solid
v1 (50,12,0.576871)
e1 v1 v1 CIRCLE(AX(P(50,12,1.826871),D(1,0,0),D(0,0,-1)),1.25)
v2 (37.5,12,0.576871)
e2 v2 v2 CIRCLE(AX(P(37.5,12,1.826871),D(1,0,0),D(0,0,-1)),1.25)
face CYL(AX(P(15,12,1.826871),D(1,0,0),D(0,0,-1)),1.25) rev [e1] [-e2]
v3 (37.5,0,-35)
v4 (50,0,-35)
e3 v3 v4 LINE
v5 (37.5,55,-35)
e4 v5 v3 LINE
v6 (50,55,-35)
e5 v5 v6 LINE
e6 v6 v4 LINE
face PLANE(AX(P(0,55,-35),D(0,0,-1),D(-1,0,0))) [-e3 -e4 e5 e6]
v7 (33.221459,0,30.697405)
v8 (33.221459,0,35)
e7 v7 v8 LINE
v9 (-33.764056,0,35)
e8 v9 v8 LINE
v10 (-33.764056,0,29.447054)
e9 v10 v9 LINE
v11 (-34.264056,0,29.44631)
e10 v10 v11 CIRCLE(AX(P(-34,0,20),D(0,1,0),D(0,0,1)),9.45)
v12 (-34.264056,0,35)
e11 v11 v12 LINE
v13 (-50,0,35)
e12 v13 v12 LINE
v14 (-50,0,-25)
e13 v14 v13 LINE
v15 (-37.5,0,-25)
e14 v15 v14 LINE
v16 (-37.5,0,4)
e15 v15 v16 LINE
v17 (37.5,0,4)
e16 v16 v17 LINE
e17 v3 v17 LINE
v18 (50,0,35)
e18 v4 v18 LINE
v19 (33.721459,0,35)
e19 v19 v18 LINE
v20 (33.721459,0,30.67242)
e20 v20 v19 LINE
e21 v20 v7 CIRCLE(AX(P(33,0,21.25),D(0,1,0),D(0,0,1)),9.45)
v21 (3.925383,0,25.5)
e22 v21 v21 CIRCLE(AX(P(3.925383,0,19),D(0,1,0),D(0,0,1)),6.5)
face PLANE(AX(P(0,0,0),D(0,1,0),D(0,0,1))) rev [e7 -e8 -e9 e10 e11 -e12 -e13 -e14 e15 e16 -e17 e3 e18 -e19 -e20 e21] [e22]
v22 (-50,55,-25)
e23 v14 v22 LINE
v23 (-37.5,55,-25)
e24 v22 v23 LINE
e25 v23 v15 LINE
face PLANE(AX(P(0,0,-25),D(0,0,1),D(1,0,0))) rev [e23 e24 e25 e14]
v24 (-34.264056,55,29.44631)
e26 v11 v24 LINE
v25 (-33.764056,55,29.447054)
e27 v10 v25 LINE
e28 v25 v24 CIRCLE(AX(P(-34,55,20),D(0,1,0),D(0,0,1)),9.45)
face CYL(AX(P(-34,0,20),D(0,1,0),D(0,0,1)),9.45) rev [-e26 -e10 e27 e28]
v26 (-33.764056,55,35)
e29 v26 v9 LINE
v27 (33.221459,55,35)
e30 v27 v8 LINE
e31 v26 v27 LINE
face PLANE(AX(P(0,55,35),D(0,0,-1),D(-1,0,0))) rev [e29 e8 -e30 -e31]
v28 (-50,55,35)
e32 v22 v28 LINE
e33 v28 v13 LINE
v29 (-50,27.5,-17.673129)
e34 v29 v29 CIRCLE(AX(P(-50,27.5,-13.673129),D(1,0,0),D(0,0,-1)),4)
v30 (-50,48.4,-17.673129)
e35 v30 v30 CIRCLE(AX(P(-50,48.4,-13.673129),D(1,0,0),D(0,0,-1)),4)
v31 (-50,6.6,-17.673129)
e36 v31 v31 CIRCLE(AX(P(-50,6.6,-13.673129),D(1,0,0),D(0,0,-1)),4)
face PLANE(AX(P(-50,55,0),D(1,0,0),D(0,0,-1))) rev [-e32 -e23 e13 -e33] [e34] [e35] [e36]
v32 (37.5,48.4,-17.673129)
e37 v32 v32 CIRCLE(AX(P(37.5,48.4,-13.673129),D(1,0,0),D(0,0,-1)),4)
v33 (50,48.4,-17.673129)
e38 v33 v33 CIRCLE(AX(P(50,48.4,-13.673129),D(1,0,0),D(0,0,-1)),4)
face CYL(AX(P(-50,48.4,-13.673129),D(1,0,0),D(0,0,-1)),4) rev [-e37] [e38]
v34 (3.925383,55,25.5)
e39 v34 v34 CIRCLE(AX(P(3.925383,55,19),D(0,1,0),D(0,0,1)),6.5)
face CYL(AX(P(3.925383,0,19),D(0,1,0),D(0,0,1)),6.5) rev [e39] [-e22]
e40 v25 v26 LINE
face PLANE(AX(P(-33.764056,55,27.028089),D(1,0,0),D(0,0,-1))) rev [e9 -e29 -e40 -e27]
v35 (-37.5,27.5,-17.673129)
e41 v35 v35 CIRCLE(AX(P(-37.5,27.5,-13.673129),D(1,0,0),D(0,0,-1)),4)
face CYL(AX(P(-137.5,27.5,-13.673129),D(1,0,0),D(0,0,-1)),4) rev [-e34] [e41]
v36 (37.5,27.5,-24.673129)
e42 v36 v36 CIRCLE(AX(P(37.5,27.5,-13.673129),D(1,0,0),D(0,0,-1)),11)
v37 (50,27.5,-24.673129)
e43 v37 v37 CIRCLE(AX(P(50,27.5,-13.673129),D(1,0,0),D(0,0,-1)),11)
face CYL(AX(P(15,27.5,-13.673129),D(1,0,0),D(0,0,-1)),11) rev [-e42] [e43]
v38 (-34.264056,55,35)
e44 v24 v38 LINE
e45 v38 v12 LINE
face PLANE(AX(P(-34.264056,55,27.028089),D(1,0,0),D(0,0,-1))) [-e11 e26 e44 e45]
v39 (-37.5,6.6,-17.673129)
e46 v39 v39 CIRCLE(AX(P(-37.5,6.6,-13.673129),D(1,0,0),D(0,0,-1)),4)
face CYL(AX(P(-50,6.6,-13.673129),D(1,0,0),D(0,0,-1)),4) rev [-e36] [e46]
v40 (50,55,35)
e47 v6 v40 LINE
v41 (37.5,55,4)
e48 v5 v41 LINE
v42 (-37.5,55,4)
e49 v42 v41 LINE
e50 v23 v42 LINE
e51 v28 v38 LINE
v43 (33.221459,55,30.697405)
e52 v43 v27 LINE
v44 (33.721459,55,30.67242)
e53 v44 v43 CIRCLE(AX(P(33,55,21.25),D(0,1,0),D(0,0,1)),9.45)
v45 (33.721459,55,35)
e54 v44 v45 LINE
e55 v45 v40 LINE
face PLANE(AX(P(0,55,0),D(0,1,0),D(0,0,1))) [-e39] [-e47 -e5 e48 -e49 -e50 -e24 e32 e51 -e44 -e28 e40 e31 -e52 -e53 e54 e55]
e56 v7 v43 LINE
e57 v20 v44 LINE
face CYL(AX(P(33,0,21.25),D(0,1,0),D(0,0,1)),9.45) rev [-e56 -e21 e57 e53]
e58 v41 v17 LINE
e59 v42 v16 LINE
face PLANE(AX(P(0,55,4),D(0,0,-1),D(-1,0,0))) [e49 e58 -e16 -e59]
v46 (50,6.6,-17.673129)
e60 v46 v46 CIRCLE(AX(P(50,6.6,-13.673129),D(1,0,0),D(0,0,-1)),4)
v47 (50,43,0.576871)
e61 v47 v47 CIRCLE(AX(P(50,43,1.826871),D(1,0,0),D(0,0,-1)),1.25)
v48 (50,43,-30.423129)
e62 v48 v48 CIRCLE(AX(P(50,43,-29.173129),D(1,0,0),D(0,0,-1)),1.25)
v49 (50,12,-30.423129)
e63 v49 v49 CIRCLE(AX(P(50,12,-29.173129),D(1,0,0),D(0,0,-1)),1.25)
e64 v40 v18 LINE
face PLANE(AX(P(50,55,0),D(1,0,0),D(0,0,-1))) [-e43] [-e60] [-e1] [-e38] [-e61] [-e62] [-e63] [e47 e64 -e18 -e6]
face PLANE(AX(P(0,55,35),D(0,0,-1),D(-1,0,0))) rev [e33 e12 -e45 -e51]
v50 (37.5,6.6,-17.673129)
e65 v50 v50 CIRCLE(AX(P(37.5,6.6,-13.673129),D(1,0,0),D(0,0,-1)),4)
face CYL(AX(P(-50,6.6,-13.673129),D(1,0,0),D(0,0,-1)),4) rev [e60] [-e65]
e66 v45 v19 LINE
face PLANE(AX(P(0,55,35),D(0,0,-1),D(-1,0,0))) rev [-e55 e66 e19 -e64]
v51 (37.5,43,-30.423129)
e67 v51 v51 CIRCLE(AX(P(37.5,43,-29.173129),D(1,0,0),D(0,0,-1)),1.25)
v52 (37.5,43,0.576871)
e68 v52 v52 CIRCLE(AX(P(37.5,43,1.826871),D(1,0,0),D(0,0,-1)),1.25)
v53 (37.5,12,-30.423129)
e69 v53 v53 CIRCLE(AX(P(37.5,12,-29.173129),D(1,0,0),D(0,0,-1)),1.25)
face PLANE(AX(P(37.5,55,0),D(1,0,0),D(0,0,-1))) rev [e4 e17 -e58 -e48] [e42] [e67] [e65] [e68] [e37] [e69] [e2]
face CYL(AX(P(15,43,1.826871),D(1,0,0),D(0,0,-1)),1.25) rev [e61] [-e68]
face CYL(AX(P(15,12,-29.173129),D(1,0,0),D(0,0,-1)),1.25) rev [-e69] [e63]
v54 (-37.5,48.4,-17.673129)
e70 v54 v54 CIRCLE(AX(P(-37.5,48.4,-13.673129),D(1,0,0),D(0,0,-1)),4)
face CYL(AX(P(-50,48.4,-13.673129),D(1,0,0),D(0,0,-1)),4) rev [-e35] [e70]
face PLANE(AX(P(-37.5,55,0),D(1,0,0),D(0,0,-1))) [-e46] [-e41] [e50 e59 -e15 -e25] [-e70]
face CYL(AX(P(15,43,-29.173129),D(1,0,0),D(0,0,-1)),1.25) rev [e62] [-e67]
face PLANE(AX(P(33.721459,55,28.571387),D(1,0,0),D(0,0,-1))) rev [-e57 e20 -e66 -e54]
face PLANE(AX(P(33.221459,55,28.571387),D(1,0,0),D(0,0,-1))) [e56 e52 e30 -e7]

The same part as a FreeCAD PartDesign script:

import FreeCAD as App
import Part
import Sketcher
Q = App.Units.Quantity


def add_polygon(sketch, points):
    """Adds a closed chain of lines whose ends are joined by coincident constraints."""
    first, n = sketch.GeometryCount, len(points)
    for a, b in zip(points, points[1:] + points[:1]):
        sketch.addGeometry(Part.LineSegment(App.Vector(*a, 0), App.Vector(*b, 0)), False)
    for i in range(n):
        sketch.addConstraint(Sketcher.Constraint("Coincident", first + i, 2, first + (i + 1) % n, 1))

doc = App.newDocument("Part")
body = doc.addObject("PartDesign::Body", "Body")

# Sketch on XZ plane
sketch1 = body.newObject("Sketcher::SketchObject", "Sketch")
sketch1.AttachmentSupport = (doc.getObject("XZ_Plane"), [""])
sketch1.MapMode = "FlatFace"
add_polygon(sketch1, [(-38, -35), (-50, -35), (-50, 35), (50, 35), (50, -35), (38, -35), (38, 4), (-38, 4)])  # lines 0-7
sketch1.addConstraint([
    Sketcher.Constraint("Horizontal", 0),
    Sketcher.Constraint("Vertical", 1),
    Sketcher.Constraint("Horizontal", 2),
    Sketcher.Constraint("Vertical", 3),
    Sketcher.Constraint("Horizontal", 4),
    Sketcher.Constraint("Vertical", 5),
    Sketcher.Constraint("Horizontal", 6),
    Sketcher.Constraint("Vertical", 7),
    Sketcher.Constraint("Symmetric", 0, 2, 2, 2, -1, 1),
    Sketcher.Constraint("Symmetric", 4, 2, 7, 2, -2),
    Sketcher.Constraint("DistanceX", 2, 1, 2, 2, Q("100 mm")),
    Sketcher.Constraint("DistanceX", 6, 2, 6, 1, Q("75 mm")),
    Sketcher.Constraint("DistanceY", 1, 1, 1, 2, Q("70 mm")),
    Sketcher.Constraint("DistanceY", 5, 1, 5, 2, Q("39 mm")),
])
pad1 = body.newObject("PartDesign::Pad", "Pad")
pad1.Profile = sketch1
pad1.Length = 55
pad1.Reversed = True

# Sketch on XY plane
sketch2 = body.newObject("Sketcher::SketchObject", "Sketch001")
sketch2.AttachmentSupport = (doc.getObject("XY_Plane"), [""])
sketch2.MapMode = "FlatFace"
sketch2.AttachmentOffset = App.Placement(App.Vector(0, 0, -35), App.Rotation())
add_polygon(sketch2, [(-38, 55), (-38, 0), (-50, 0), (-50, 55)])  # lines 0-3
sketch2.addConstraint([
    Sketcher.Constraint("Vertical", 0),
    Sketcher.Constraint("Horizontal", 1),
    Sketcher.Constraint("Vertical", 2),
    Sketcher.Constraint("Horizontal", 3),
    Sketcher.Constraint("PointOnObject", 0, 2, -1),
    Sketcher.Constraint("DistanceY", 0, 2, 0, 1, Q("55 mm")),
    Sketcher.Constraint("DistanceX", 1, 2, 1, 1, Q("12.5 mm")),
    Sketcher.Constraint("DistanceX", 1, 2, -1, 1, Q("50 mm")),
])
pocket1 = body.newObject("PartDesign::Pocket", "Pocket")
pocket1.Profile = sketch2
pocket1.Length = 10
pocket1.Reversed = True

# Sketch on XZ plane
sketch3 = body.newObject("Sketcher::SketchObject", "Sketch002")
sketch3.AttachmentSupport = (doc.getObject("XZ_Plane"), [""])
sketch3.MapMode = "FlatFace"
sketch3.AttachmentOffset = App.Placement(App.Vector(0, 0, -55), App.Rotation())
sketch3.addGeometry(Part.Circle(App.Vector(33, 21, 0), App.Vector(0, 0, 1), 9), False)
sketch3.addConstraint([
    Sketcher.Constraint("Diameter", 0, Q("18.9 mm")),
    Sketcher.Constraint("DistanceX", -1, 1, 0, 3, Q("33 mm")),
    Sketcher.Constraint("DistanceY", -1, 1, 0, 3, Q("21.25 mm")),
])
pocket2 = body.newObject("PartDesign::Pocket", "Pocket001")
pocket2.Profile = sketch3
pocket2.Type = "ThroughAll"
pocket2.Reversed = True

# Sketch on XZ plane
sketch4 = body.newObject("Sketcher::SketchObject", "Sketch003")
sketch4.AttachmentSupport = (doc.getObject("XZ_Plane"), [""])
sketch4.MapMode = "FlatFace"
sketch4.AttachmentOffset = App.Placement(App.Vector(0, 0, -55), App.Rotation())
sketch4.addGeometry(Part.Circle(App.Vector(-34, 20, 0), App.Vector(0, 0, 1), 9), False)
sketch4.addConstraint([
    Sketcher.Constraint("Diameter", 0, Q("18.9 mm")),
    Sketcher.Constraint("DistanceX", 0, 3, -1, 1, Q("34 mm")),
    Sketcher.Constraint("DistanceY", -1, 1, 0, 3, Q("20 mm")),
])
pocket3 = body.newObject("PartDesign::Pocket", "Pocket002")
pocket3.Profile = sketch4
pocket3.Type = "ThroughAll"
pocket3.Reversed = True

# Sketch on YZ plane
sketch5 = body.newObject("Sketcher::SketchObject", "Sketch004")
sketch5.AttachmentSupport = (doc.getObject("YZ_Plane"), [""])
sketch5.MapMode = "FlatFace"
sketch5.AttachmentOffset = App.Placement(App.Vector(0, 0, 50), App.Rotation())
sketch5.addGeometry([
    Part.Circle(App.Vector(12, -29.2, 0), App.Vector(0, 0, 1), 1.2),
    Part.Circle(App.Vector(12, 1.8, 0), App.Vector(0, 0, 1), 1.2),
    Part.Circle(App.Vector(43, 1.8, 0), App.Vector(0, 0, 1), 1.2),
    Part.Circle(App.Vector(43, -29.2, 0), App.Vector(0, 0, 1), 1.2),
], False)
sketch5.addConstraint([
    Sketcher.Constraint("Equal", 0, 1),
    Sketcher.Constraint("Equal", 1, 2),
    Sketcher.Constraint("Equal", 2, 3),
    Sketcher.Constraint("Horizontal", 1, 3, 2, 3),
    Sketcher.Constraint("Horizontal", 0, 3, 3, 3),
    Sketcher.Constraint("Vertical", 0, 3, 1, 3),
    Sketcher.Constraint("Vertical", 2, 3, 3, 3),
    Sketcher.Constraint("Diameter", 0, Q("2.5 mm")),
    Sketcher.Constraint("DistanceX", -1, 1, 0, 3, Q("12 mm")),
    Sketcher.Constraint("DistanceX", -1, 1, 2, 3, Q("43 mm")),
    Sketcher.Constraint("DistanceY", 0, 3, 1, 3, Q("31 mm")),
    Sketcher.Constraint("DistanceY", 0, 3, -1, 1, Q("29.173129 mm")),
])
pocket4 = body.newObject("PartDesign::Pocket", "Pocket003")
pocket4.Profile = sketch5
pocket4.Length = 35

# Sketch on YZ plane
sketch6 = body.newObject("Sketcher::SketchObject", "Sketch005")
sketch6.AttachmentSupport = (doc.getObject("YZ_Plane"), [""])
sketch6.MapMode = "FlatFace"
sketch6.AttachmentOffset = App.Placement(App.Vector(0, 0, 50), App.Rotation())
sketch6.addGeometry(Part.Circle(App.Vector(28, -14, 0), App.Vector(0, 0, 1), 11), False)
sketch6.addConstraint([
    Sketcher.Constraint("Diameter", 0, Q("22 mm")),
    Sketcher.Constraint("DistanceX", -1, 1, 0, 3, Q("27.5 mm")),
    Sketcher.Constraint("DistanceY", 0, 3, -1, 1, Q("13.673129 mm")),
])
pocket5 = body.newObject("PartDesign::Pocket", "Pocket004")
pocket5.Profile = sketch6
pocket5.Length = 35

# Sketch on YZ plane
sketch7 = body.newObject("Sketcher::SketchObject", "Sketch006")
sketch7.AttachmentSupport = (doc.getObject("YZ_Plane"), [""])
sketch7.MapMode = "FlatFace"
sketch7.AttachmentOffset = App.Placement(App.Vector(0, 0, 50), App.Rotation())
sketch7.addGeometry([
    Part.Circle(App.Vector(48.4, -13.7, 0), App.Vector(0, 0, 1), 4),
    Part.Circle(App.Vector(6.6, -13.7, 0), App.Vector(0, 0, 1), 4),
], False)
sketch7.addConstraint([
    Sketcher.Constraint("Equal", 0, 1),
    Sketcher.Constraint("Horizontal", 0, 3, 1, 3),
    Sketcher.Constraint("Diameter", 0, Q("8 mm")),
    Sketcher.Constraint("DistanceX", -1, 1, 0, 3, Q("48.4 mm")),
    Sketcher.Constraint("DistanceX", -1, 1, 1, 3, Q("6.6 mm")),
    Sketcher.Constraint("DistanceY", 0, 3, -1, 1, Q("13.673129 mm")),
])
pocket6 = body.newObject("PartDesign::Pocket", "Pocket005")
pocket6.Profile = sketch7
pocket6.Type = "ThroughAll"
pocket6.Midplane = True

# Sketch on YZ plane
sketch8 = body.newObject("Sketcher::SketchObject", "Sketch007")
sketch8.AttachmentSupport = (doc.getObject("YZ_Plane"), [""])
sketch8.MapMode = "FlatFace"
sketch8.AttachmentOffset = App.Placement(App.Vector(0, 0, -37.5), App.Rotation())
sketch8.addGeometry(Part.Circle(App.Vector(27.5, -13.7, 0), App.Vector(0, 0, 1), 4), False)
sketch8.addConstraint([
    Sketcher.Constraint("Diameter", 0, Q("8 mm")),
    Sketcher.Constraint("DistanceX", -1, 1, 0, 3, Q("27.5 mm")),
    Sketcher.Constraint("DistanceY", 0, 3, -1, 1, Q("13.673129 mm")),
])
pocket7 = body.newObject("PartDesign::Pocket", "Pocket006")
pocket7.Profile = sketch8
pocket7.Length = 100

# Sketch on XZ plane
sketch9 = body.newObject("Sketcher::SketchObject", "Sketch008")
sketch9.AttachmentSupport = (doc.getObject("XZ_Plane"), [""])
sketch9.MapMode = "FlatFace"
add_polygon(sketch9, [(33.2, 36), (33.2, 28.6), (33.7, 28.6), (33.7, 36)])  # lines 0-3
add_polygon(sketch9, [(-34.3, 36.2), (-34.3, 27), (-33.8, 27), (-33.8, 36.2)])  # lines 4-7
sketch9.addConstraint([
    Sketcher.Constraint("Vertical", 0),
    Sketcher.Constraint("Horizontal", 1),
    Sketcher.Constraint("Vertical", 2),
    Sketcher.Constraint("Horizontal", 3),
    Sketcher.Constraint("Vertical", 4),
    Sketcher.Constraint("Horizontal", 5),
    Sketcher.Constraint("Vertical", 6),
    Sketcher.Constraint("Horizontal", 7),
    Sketcher.Constraint("Equal", 3, 5),
    Sketcher.Constraint("DistanceX", 1, 1, 1, 2, Q("0.5 mm")),
    Sketcher.Constraint("DistanceY", 0, 2, 6, 2, Q("7.594699 mm")),
    Sketcher.Constraint("DistanceY", 0, 2, 0, 1, Q("7.437727 mm")),
    Sketcher.Constraint("DistanceY", 4, 2, 4, 1, Q("9.137997 mm")),
    Sketcher.Constraint("DistanceX", -1, 1, 0, 2, Q("33.221459 mm")),
    Sketcher.Constraint("DistanceY", -1, 1, 4, 2, Q("27.028089 mm")),
    Sketcher.Constraint("DistanceX", 4, 2, -1, 1, Q("34.264056 mm")),
])
pocket8 = body.newObject("PartDesign::Pocket", "Pocket007")
pocket8.Profile = sketch9
pocket8.Type = "ThroughAll"

# Sketch on XZ plane
sketch10 = body.newObject("Sketcher::SketchObject", "Sketch009")
sketch10.AttachmentSupport = (doc.getObject("XZ_Plane"), [""])
sketch10.MapMode = "FlatFace"
sketch10.AttachmentOffset = App.Placement(App.Vector(0, 0, -55), App.Rotation())
sketch10.addGeometry(Part.Circle(App.Vector(4, 19, 0), App.Vector(0, 0, 1), 6), False)
sketch10.addConstraint([
    Sketcher.Constraint("Diameter", 0, Q("13 mm")),
    Sketcher.Constraint("DistanceY", -1, 1, 0, 3, Q("19 mm")),
    Sketcher.Constraint("DistanceX", -1, 1, 0, 3, Q("3.925383 mm")),
])
pocket9 = body.newObject("PartDesign::Pocket", "Pocket008")
pocket9.Profile = sketch10
pocket9.Type = "ThroughAll"
pocket9.Reversed = True

doc.recompute()
